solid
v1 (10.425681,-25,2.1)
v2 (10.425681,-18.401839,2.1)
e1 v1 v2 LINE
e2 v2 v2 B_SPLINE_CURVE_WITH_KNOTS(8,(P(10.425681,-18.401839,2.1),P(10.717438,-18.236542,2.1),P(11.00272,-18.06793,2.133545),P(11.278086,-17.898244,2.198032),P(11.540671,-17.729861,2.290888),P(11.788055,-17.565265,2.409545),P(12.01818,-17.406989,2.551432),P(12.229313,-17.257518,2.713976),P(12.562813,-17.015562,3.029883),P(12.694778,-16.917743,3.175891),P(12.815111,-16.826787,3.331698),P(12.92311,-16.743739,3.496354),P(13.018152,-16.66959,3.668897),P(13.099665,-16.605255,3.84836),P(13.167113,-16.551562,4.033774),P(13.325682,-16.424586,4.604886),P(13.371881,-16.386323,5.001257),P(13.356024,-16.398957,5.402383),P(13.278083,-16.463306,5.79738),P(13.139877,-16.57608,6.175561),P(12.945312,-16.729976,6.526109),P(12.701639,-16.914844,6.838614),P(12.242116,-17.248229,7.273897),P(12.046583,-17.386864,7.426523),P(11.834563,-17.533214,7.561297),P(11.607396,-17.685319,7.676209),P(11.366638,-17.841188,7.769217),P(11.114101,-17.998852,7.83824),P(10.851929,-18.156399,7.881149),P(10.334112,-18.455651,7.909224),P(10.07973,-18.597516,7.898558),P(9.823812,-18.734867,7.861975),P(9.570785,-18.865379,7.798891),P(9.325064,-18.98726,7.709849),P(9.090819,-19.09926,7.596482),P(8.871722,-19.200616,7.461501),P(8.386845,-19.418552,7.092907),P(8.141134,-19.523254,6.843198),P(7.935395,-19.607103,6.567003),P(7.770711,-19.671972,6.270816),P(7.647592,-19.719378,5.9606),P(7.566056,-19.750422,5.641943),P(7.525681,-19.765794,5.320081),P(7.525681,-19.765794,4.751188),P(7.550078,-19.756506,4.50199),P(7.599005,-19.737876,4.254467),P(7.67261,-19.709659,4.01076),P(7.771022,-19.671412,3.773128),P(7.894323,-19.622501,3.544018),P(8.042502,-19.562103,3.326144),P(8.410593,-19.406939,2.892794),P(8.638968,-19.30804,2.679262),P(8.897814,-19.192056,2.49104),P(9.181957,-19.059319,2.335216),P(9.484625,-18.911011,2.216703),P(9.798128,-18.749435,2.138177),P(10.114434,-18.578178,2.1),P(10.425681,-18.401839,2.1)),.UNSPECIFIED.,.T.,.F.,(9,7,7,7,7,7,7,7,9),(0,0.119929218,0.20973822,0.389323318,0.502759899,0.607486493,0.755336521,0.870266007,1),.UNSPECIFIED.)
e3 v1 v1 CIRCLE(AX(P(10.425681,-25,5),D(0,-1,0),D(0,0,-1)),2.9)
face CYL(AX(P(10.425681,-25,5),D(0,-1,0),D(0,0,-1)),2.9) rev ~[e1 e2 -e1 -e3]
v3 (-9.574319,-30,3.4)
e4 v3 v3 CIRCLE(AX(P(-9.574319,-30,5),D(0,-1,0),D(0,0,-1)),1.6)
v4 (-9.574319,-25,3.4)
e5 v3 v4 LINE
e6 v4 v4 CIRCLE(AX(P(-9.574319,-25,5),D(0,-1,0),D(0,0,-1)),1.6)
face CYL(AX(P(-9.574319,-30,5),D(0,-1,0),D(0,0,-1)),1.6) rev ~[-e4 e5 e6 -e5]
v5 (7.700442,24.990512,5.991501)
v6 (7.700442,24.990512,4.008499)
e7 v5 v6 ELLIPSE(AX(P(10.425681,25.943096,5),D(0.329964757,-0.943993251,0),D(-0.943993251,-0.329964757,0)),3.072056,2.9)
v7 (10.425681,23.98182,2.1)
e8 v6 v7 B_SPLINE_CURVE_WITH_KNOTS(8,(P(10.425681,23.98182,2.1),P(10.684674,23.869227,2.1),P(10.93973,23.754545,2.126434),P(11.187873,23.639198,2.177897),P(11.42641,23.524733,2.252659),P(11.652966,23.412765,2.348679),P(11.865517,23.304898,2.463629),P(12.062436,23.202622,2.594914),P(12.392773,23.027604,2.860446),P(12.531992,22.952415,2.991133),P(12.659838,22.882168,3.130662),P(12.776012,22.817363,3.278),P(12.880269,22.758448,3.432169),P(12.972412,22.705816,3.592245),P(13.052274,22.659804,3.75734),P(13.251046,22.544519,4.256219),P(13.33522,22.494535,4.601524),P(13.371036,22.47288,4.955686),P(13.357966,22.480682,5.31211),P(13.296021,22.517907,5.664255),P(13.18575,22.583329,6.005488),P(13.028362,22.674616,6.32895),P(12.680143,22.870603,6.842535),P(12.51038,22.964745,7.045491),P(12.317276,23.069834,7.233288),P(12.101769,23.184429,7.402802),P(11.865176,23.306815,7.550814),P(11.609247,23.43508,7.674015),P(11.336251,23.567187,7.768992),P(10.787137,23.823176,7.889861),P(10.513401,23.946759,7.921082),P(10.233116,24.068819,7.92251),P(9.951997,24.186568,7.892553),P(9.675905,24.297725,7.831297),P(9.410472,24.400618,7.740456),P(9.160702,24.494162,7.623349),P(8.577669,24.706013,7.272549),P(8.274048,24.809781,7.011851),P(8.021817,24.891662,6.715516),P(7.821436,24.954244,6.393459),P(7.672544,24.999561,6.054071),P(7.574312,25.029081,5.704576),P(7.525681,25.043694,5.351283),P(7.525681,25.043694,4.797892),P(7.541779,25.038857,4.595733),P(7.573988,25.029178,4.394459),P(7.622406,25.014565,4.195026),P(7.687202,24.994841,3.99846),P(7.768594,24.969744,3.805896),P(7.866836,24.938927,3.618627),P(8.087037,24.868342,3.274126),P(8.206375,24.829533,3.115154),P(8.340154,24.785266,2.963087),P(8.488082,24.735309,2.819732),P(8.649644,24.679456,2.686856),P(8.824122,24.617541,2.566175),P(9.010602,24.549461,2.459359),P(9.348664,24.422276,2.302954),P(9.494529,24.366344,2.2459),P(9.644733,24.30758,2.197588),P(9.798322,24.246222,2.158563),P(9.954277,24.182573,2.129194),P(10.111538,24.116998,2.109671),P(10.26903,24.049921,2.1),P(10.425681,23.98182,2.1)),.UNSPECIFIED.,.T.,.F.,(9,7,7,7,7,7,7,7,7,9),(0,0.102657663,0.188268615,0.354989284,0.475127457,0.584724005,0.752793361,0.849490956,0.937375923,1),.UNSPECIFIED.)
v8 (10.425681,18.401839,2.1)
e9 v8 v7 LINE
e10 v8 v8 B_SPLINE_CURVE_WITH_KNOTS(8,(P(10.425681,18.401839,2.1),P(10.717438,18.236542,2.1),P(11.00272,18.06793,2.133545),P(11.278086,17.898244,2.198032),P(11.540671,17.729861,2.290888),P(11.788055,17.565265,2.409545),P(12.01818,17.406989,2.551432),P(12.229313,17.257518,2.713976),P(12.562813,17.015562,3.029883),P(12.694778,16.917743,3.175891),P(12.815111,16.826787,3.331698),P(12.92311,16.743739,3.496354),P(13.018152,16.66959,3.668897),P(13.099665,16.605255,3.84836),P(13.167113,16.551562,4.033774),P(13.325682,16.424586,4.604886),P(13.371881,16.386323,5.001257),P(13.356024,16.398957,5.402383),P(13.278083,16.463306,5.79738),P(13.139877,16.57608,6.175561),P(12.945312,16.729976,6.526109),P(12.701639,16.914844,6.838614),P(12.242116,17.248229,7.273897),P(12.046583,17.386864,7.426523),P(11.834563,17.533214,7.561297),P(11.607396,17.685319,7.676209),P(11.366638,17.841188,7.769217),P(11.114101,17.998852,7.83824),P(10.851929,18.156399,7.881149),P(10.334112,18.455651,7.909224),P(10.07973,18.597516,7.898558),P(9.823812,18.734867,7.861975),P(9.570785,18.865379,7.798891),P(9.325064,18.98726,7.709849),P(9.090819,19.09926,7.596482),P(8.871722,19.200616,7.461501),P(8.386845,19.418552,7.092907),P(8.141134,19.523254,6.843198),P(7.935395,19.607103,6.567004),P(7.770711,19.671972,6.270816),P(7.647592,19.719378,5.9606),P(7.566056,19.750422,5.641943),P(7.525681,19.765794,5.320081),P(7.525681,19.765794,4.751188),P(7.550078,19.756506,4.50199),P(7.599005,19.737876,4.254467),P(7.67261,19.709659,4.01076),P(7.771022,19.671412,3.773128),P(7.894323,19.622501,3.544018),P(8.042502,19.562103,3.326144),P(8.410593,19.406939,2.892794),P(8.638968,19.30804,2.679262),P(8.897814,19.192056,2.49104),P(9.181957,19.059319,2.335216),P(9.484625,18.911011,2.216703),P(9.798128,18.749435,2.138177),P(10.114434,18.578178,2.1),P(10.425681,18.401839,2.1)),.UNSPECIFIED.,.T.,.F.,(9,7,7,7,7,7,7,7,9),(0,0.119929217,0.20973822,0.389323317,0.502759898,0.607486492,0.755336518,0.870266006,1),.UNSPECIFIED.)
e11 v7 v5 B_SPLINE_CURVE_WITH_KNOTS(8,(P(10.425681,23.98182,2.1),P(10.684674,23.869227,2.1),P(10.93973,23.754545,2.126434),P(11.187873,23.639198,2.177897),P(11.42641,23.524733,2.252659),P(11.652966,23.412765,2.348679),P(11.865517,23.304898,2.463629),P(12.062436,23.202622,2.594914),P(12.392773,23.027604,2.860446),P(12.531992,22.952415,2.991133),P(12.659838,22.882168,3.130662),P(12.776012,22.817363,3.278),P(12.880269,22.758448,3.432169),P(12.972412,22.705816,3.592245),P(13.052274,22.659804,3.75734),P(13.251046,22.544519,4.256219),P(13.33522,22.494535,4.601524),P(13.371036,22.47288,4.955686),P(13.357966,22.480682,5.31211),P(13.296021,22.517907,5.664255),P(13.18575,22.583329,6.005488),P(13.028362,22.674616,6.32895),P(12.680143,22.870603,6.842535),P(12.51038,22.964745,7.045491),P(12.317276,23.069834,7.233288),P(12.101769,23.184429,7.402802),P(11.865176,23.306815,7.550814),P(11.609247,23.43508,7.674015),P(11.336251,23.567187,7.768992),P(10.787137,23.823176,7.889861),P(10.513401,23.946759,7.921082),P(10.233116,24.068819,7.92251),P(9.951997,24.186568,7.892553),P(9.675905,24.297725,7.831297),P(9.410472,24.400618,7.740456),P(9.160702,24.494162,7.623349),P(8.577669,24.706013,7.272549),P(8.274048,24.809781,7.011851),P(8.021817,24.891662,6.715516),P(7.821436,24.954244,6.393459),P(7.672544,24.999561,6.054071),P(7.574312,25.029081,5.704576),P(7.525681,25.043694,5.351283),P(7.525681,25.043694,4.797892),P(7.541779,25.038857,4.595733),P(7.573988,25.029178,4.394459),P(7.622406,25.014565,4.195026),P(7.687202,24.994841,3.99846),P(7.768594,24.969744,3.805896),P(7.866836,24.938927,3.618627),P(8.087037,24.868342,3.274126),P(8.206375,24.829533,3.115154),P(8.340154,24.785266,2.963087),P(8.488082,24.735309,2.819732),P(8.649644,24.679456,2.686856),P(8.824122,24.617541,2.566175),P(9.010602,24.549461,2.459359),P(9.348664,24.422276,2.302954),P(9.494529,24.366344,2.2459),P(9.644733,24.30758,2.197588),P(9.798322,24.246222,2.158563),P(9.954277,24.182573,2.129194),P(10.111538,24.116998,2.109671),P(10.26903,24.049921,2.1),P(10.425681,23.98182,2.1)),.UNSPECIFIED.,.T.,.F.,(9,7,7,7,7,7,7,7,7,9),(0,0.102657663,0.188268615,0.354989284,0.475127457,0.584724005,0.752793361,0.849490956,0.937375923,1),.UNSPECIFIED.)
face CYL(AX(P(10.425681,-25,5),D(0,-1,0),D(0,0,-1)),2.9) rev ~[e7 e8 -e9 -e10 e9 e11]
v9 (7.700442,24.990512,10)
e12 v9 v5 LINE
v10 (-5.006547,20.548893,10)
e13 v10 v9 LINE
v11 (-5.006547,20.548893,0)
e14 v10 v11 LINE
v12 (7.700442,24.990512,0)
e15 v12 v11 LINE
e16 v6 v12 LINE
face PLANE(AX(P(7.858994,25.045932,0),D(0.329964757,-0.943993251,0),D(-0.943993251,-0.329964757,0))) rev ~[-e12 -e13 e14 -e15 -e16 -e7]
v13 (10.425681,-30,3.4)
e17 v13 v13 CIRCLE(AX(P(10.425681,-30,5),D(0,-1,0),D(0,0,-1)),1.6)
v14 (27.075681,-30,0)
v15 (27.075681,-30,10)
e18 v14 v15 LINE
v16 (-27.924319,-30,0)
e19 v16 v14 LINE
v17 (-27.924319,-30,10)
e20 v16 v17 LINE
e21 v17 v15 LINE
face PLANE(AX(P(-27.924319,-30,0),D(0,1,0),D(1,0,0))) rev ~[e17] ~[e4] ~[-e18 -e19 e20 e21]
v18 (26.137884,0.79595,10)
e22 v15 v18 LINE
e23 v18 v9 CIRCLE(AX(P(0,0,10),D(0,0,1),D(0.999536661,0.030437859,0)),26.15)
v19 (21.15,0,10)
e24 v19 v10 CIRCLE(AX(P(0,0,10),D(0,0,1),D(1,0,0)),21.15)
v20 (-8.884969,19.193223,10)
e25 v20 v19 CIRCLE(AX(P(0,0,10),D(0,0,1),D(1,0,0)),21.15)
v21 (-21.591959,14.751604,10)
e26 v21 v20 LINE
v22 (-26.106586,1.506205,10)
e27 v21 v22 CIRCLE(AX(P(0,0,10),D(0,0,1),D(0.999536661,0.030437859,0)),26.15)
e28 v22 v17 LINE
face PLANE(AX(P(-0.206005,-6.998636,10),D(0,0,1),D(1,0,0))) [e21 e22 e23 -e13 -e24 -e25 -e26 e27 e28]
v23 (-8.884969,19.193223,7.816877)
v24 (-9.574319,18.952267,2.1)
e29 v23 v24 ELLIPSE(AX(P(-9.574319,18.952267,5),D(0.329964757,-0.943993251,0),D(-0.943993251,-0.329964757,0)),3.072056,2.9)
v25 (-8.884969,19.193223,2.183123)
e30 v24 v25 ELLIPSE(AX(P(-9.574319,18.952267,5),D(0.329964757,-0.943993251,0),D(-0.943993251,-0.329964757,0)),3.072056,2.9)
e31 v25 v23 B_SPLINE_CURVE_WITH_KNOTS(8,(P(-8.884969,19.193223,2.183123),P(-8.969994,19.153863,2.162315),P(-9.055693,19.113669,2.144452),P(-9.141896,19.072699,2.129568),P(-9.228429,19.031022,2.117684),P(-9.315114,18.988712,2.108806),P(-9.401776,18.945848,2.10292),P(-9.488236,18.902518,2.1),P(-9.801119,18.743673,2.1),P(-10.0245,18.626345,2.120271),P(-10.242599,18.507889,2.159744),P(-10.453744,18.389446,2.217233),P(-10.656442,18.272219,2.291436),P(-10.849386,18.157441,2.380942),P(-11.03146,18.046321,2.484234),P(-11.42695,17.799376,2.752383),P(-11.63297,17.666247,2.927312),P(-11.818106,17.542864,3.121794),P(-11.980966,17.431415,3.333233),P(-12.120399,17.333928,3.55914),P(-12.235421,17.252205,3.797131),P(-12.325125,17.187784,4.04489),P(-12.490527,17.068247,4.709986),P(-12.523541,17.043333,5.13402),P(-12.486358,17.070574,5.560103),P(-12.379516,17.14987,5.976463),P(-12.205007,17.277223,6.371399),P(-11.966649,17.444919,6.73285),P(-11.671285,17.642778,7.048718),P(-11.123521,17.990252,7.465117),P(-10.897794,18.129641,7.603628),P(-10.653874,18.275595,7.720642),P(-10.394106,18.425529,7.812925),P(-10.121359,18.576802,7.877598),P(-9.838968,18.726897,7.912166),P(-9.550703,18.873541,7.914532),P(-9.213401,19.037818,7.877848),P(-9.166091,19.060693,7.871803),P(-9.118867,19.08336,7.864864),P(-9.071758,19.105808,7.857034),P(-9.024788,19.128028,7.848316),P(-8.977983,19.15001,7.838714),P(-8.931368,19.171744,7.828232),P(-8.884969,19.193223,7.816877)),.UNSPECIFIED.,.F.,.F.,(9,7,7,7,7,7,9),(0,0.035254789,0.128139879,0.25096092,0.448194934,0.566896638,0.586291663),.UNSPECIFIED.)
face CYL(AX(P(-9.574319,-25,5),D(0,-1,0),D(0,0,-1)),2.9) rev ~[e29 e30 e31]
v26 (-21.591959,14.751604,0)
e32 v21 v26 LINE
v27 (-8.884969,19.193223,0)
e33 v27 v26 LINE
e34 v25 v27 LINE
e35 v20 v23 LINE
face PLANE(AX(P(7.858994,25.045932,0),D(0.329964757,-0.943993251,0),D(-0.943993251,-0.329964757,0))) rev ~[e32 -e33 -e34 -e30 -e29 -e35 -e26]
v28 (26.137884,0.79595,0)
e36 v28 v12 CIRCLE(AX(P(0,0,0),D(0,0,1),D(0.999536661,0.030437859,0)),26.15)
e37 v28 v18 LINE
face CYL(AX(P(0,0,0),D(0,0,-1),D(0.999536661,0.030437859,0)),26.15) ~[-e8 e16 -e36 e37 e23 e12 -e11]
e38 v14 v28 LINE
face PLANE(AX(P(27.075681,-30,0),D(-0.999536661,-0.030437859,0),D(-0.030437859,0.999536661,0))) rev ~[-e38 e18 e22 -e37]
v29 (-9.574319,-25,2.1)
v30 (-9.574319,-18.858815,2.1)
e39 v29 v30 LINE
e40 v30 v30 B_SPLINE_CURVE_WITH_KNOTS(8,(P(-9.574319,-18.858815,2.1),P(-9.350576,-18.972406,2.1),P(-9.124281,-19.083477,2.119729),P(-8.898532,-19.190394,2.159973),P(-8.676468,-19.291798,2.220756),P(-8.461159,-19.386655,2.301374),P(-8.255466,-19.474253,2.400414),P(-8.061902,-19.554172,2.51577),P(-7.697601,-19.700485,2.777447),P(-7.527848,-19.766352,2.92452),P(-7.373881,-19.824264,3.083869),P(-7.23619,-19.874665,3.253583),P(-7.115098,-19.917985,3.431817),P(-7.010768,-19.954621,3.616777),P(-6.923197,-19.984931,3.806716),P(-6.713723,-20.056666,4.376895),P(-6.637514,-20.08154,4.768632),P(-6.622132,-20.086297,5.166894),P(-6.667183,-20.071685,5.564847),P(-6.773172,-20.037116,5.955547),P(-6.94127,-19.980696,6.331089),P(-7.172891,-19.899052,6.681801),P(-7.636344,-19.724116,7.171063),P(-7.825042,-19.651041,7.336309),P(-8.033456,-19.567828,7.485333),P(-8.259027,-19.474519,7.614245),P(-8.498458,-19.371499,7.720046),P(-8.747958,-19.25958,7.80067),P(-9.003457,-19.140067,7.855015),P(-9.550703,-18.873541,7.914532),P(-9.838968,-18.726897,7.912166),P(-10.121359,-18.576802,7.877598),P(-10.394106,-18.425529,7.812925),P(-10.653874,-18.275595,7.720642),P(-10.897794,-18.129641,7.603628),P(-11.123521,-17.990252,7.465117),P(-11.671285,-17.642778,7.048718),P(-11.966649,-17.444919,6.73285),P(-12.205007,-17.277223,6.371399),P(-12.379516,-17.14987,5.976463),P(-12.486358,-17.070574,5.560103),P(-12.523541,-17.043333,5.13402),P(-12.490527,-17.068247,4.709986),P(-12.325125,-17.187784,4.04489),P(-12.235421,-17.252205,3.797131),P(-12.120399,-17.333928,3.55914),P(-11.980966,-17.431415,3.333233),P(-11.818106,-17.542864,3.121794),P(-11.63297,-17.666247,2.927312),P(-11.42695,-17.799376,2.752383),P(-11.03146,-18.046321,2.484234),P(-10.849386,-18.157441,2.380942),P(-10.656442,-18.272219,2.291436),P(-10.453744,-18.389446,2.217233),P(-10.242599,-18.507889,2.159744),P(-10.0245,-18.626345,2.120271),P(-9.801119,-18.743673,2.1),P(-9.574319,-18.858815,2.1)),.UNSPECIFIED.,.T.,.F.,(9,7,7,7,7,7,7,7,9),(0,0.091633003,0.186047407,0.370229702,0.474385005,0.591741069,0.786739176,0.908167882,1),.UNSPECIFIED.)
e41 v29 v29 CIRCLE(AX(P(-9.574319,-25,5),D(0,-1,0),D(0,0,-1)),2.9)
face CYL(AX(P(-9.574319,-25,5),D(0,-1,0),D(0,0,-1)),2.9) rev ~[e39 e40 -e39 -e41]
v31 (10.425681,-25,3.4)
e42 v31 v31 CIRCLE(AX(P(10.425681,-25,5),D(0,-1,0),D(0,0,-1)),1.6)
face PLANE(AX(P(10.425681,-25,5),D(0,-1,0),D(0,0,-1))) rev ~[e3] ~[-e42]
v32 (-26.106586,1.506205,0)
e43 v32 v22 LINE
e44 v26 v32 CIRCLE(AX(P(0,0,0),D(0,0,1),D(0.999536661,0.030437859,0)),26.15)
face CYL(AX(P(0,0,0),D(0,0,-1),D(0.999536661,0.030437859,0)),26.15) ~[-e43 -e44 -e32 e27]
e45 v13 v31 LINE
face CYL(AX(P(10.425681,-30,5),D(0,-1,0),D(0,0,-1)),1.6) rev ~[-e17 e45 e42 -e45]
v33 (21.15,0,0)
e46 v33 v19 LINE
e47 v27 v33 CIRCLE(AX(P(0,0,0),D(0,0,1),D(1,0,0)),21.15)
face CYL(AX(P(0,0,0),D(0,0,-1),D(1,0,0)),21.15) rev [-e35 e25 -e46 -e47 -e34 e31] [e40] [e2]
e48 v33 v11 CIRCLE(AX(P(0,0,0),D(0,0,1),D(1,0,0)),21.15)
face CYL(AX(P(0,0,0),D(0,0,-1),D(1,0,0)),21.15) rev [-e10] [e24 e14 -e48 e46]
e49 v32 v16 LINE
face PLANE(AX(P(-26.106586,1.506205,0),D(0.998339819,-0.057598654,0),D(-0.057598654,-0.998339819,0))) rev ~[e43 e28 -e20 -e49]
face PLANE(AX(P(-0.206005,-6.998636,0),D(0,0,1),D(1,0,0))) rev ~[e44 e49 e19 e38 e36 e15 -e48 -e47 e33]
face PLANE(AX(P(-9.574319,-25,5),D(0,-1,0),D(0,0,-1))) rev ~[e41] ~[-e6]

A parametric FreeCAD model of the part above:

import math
import FreeCAD as App
import Part
import Sketcher
Q = App.Units.Quantity

doc = App.newDocument("Part")
body = doc.addObject("PartDesign::Body", "Body")

sketch1 = body.newObject("Sketcher::SketchObject", "Sketch")
sketch1.AttachmentSupport = (doc.getObject("XY_Plane"), [""])
sketch1.MapMode = "FlatFace"
sketch1.addGeometry(Part.LineSegment(App.Vector(-27.924319, -30, 0), App.Vector(27.075681, -30, 0)), False)
sketch1.addGeometry(Part.LineSegment(App.Vector(27.075681, -30, 0), App.Vector(26.137884, 0.79595, 0)), False)
sketch1.addGeometry(Part.ArcOfCircle(Part.Circle(App.Vector(0, 0, 0), App.Vector(0, 0, 1), 26.15), math.radians(1.74423), math.radians(176.698013)), False)
sketch1.addGeometry(Part.LineSegment(App.Vector(-26.106586, 1.506205, 0), App.Vector(-27.924319, -30, 0)), False)
sketch1.addGeometry(Part.Circle(App.Vector(0, 0, 0), App.Vector(0, 0, 1), 21.15), False)
sketch1.addConstraint(Sketcher.Constraint("Coincident", 0, 2, 1, 1))
sketch1.addConstraint(Sketcher.Constraint("Tangent", 1, 2, 2, 1))
sketch1.addConstraint(Sketcher.Constraint("Tangent", 2, 2, 3, 1))
sketch1.addConstraint(Sketcher.Constraint("Coincident", 3, 2, 0, 1))
sketch1.addConstraint(Sketcher.Constraint("Horizontal", 0))
sketch1.addConstraint(Sketcher.Constraint("Coincident", 2, 3, -1, 1))
sketch1.addConstraint(Sketcher.Constraint("Coincident", 4, 3, -1, 1))
sketch1.addConstraint(Sketcher.Constraint("Diameter", 4, Q("42.3 mm")))
sketch1.addConstraint(Sketcher.Constraint("DistanceX", 0, 1, 0, 2, Q("55 mm")))
sketch1.addConstraint(Sketcher.Constraint("Radius", 2, Q("26.15 mm")))
sketch1.addConstraint(Sketcher.Constraint("DistanceY", 0, 2, -1, 1, Q("30 mm")))
sketch1.addConstraint(Sketcher.Constraint("DistanceX", -1, 1, 0, 2, Q("27.075681 mm")))
pad1 = body.newObject("PartDesign::Pad", "Pad")
pad1.Profile = sketch1
pad1.Length = 10

sketch2 = body.newObject("Sketcher::SketchObject", "Sketch001")
sketch2.AttachmentSupport = (doc.getObject("XZ_Plane"), [""])
sketch2.MapMode = "FlatFace"
sketch2.AttachmentOffset = App.Placement(App.Vector(0, 0, 30), App.Rotation())
sketch2.addGeometry(Part.Circle(App.Vector(10.425681, 5, 0), App.Vector(0, 0, 1), 1.6), False)
sketch2.addGeometry(Part.Circle(App.Vector(-9.574319, 5, 0), App.Vector(0, 0, 1), 1.6), False)
sketch2.addConstraint(Sketcher.Constraint("Equal", 0, 1))
sketch2.addConstraint(Sketcher.Constraint("Horizontal", 0, 3, 1, 3))
sketch2.addConstraint(Sketcher.Constraint("Diameter", 0, Q("3.2 mm")))
sketch2.addConstraint(Sketcher.Constraint("DistanceY", -1, 1, 0, 3, Q("5 mm")))
sketch2.addConstraint(Sketcher.Constraint("DistanceX", 1, 3, 0, 3, Q("20 mm")))
sketch2.addConstraint(Sketcher.Constraint("DistanceX", -1, 1, 0, 3, Q("10.425681 mm")))
pocket1 = body.newObject("PartDesign::Pocket", "Pocket")
pocket1.Profile = sketch2
pocket1.Type = "ThroughAll"

sketch3 = body.newObject("Sketcher::SketchObject", "Sketch002")
sketch3.AttachmentSupport = (doc.getObject("XZ_Plane"), [""])
sketch3.MapMode = "FlatFace"
sketch3.AttachmentOffset = App.Placement(App.Vector(0, 0, 25), App.Rotation())
sketch3.addGeometry(Part.Circle(App.Vector(10.425681, 5, 0), App.Vector(0, 0, 1), 2.9), False)
sketch3.addGeometry(Part.Circle(App.Vector(-9.574319, 5, 0), App.Vector(0, 0, 1), 2.9), False)
sketch3.addConstraint(Sketcher.Constraint("Equal", 0, 1))
sketch3.addConstraint(Sketcher.Constraint("Horizontal", 0, 3, 1, 3))
sketch3.addConstraint(Sketcher.Constraint("Diameter", 0, Q("5.8 mm")))
sketch3.addConstraint(Sketcher.Constraint("DistanceY", -1, 1, 0, 3, Q("5 mm")))
sketch3.addConstraint(Sketcher.Constraint("DistanceX", 1, 3, 0, 3, Q("20 mm")))
sketch3.addConstraint(Sketcher.Constraint("DistanceX", -1, 1, 0, 3, Q("10.425681 mm")))
pocket2 = body.newObject("PartDesign::Pocket", "Pocket001")
pocket2.Profile = sketch3
pocket2.Type = "ThroughAll"

sketch4 = body.newObject("Sketcher::SketchObject", "Sketch003")
sketch4.AttachmentSupport = (doc.getObject("XY_Plane"), [""])
sketch4.MapMode = "FlatFace"
sketch4.addGeometry(Part.LineSegment(App.Vector(7.858994, 25.045932, 0), App.Vector(-21.75051, 14.696184, 0)), False)
sketch4.addGeometry(Part.ArcOfCircle(Part.Circle(App.Vector(0, 0, 0), App.Vector(0, 0, 1), 26.25), math.radians(72.579017), math.radians(145.954256)), False)
sketch4.addConstraint(Sketcher.Constraint("Coincident", 0, 1, 1, 1))
sketch4.addConstraint(Sketcher.Constraint("Coincident", 1, 2, 0, 2))
sketch4.addConstraint(Sketcher.Constraint("Coincident", 1, 3, -1, 1))
sketch4.addConstraint(Sketcher.Constraint("Radius", 1, Q("26.25 mm")))
sketch4.addConstraint(Sketcher.Constraint("DistanceX", 1, 2, -1, 1, Q("21.75051 mm")))
sketch4.addConstraint(Sketcher.Constraint("DistanceY", 1, 2, 0, 1, Q("10.349748 mm")))
pocket3 = body.newObject("PartDesign::Pocket", "Pocket002")
pocket3.Profile = sketch4
pocket3.Type = "ThroughAll"
pocket3.Reversed = True

doc.recompute()
